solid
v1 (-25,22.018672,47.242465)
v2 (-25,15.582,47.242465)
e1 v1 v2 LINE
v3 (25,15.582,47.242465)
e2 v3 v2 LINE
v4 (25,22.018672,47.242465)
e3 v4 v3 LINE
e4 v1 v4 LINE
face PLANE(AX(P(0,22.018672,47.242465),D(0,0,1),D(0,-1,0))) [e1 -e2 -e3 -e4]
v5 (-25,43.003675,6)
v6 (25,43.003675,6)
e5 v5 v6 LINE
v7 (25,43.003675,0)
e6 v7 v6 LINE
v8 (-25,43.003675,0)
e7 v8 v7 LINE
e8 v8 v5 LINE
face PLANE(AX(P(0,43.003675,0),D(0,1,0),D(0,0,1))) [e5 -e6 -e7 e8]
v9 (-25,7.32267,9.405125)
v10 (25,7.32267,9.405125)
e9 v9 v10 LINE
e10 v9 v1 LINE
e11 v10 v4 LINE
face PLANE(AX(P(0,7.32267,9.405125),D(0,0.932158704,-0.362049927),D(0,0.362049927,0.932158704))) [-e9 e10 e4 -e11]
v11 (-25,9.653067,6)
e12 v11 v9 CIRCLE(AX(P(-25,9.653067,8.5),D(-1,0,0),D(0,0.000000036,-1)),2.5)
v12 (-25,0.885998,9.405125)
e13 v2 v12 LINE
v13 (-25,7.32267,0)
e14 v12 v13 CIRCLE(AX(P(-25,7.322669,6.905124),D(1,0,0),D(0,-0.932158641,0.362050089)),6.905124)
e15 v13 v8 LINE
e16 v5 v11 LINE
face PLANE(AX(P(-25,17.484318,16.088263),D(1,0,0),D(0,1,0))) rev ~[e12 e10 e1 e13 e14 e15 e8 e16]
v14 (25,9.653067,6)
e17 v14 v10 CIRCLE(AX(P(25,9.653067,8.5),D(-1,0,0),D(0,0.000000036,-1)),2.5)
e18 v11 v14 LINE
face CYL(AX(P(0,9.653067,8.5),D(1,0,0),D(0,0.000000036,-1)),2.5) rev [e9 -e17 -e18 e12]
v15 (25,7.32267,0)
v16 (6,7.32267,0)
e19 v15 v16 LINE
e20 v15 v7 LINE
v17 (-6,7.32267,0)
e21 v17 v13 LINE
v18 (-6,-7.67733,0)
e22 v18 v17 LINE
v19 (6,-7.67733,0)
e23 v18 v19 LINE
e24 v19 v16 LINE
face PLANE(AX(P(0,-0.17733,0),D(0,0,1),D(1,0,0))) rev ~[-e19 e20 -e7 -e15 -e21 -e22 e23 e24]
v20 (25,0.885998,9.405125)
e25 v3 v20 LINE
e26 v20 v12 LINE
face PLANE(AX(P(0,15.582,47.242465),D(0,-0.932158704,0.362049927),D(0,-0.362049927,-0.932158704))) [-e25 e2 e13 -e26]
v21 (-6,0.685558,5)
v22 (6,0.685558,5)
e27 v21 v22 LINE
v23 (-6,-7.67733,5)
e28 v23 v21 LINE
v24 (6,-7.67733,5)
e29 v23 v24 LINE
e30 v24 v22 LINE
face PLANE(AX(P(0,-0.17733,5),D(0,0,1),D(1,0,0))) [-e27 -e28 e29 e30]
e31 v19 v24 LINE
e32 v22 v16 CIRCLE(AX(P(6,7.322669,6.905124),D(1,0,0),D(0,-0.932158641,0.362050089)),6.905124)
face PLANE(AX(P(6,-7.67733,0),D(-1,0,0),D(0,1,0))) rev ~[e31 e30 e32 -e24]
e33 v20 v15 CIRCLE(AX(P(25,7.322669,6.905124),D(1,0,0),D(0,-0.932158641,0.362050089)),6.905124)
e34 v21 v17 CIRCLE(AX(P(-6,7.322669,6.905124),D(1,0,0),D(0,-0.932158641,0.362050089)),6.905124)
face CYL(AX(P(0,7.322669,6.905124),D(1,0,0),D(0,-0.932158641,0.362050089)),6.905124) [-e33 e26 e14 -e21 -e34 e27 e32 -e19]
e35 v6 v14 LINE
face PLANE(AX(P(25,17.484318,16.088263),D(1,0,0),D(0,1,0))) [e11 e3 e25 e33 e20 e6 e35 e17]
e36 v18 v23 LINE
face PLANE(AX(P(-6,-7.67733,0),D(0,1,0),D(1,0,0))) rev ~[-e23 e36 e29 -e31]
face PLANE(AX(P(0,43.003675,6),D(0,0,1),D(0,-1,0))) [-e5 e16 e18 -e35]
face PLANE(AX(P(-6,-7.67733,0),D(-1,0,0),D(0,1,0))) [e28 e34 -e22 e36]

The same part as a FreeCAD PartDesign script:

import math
import FreeCAD as App
import Part
import Sketcher

V = App.Vector


def add_polygon(sketch, points):
    """Adds a closed chain of lines whose ends are joined by coincident constraints."""
    first, n = sketch.GeometryCount, len(points)
    for a, b in zip(points, points[1:] + points[:1]):
        sketch.addGeometry(Part.LineSegment(App.Vector(*a, 0), App.Vector(*b, 0)), False)
    for i in range(n):
        sketch.addConstraint(Sketcher.Constraint("Coincident", first + i, 2, first + (i + 1) % n, 1))

doc = App.newDocument("Part")
body = doc.addObject("PartDesign::Body", "Body")

sketch1 = body.newObject("Sketcher::SketchObject", "Sketch")
sketch1.AttachmentSupport = (doc.getObject("YZ_Plane"), [""])
sketch1.MapMode = "FlatFace"
sketch1.addGeometry([
    Part.LineSegment(V(7.32267, 0, 0), V(43.003675, 0, 0)),
    Part.LineSegment(V(43.003675, 0, 0), V(43.003675, 6, 0)),
    Part.LineSegment(V(43.003675, 6, 0), V(9.653067, 6, 0)),
    Part.ArcOfCircle(Part.Circle(V(9.653067, 8.5, 0), V(0, 0, 1), 2.5), math.radians(158.773858), math.radians(270.000002)),
    Part.LineSegment(V(7.32267, 9.405125, 0), V(22.018672, 47.242465, 0)),
    Part.LineSegment(V(22.018672, 47.242465, 0), V(15.582, 47.242465, 0)),
    Part.LineSegment(V(15.582, 47.242465, 0), V(0.885998, 9.405125, 0)),
    Part.ArcOfCircle(Part.Circle(V(7.322669, 6.905124, 0), V(0, 0, 1), 6.905124), math.radians(158.773847), math.radians(270.000007)),
], False)
sketch1.addConstraint([
    Sketcher.Constraint("Coincident", 0, 2, 1, 1),
    Sketcher.Constraint("Coincident", 1, 2, 2, 1),
    Sketcher.Constraint("Coincident", 2, 2, 3, 2),
    Sketcher.Constraint("Coincident", 3, 1, 4, 1),
    Sketcher.Constraint("Coincident", 4, 2, 5, 1),
    Sketcher.Constraint("Coincident", 5, 2, 6, 1),
    Sketcher.Constraint("Coincident", 6, 2, 7, 1),
    Sketcher.Constraint("Coincident", 7, 2, 0, 1),
    Sketcher.Constraint("Horizontal", 0),
    Sketcher.Constraint("Vertical", 1),
    Sketcher.Constraint("Horizontal", 2),
    Sketcher.Constraint("Horizontal", 5),
    Sketcher.Constraint("PointOnObject", 0, 2, -1),
    Sketcher.Constraint("Radius", 3, 2.5),
    Sketcher.Constraint("DistanceY", 1, 1, 1, 2, 6.0),
    Sketcher.Constraint("DistanceY", 7, 3, 3, 1, 2.500001),
    Sketcher.Constraint("DistanceY", 7, 3, 6, 2, 2.500001),
    Sketcher.Constraint("DistanceX", -1, 1, 5, 2, 15.582),
    Sketcher.Constraint("Radius", 7, 6.905124),
    Sketcher.Constraint("DistanceX", 3, 1, 4, 2, 14.696002),
    Sketcher.Constraint("DistanceX", 5, 2, 5, 1, 6.436672),
    Sketcher.Constraint("DistanceX", 0, 1, 0, 2, 35.681005),
    Sketcher.Constraint("DistanceX", 2, 2, 2, 1, 33.350608),
    Sketcher.Constraint("DistanceX", -1, 1, 7, 3, 7.322669),
    Sketcher.Constraint("DistanceX", -1, 1, 7, 2, 7.32267),
    Sketcher.Constraint("DistanceY", 3, 1, 4, 2, 37.83734),
])
pad1 = body.newObject("PartDesign::Pad", "Pad")
pad1.Profile = sketch1
pad1.Length = 50
pad1.Midplane = True

sketch2 = body.newObject("Sketcher::SketchObject", "Sketch001")
sketch2.AttachmentSupport = (doc.getObject("XY_Plane"), [""])
sketch2.MapMode = "FlatFace"
add_polygon(sketch2, [(-6, 7), (-6, -8), (6, -8), (6, 7)])
sketch2.addConstraint([
    Sketcher.Constraint("Vertical", 0),
    Sketcher.Constraint("Horizontal", 1),
    Sketcher.Constraint("Vertical", 2),
    Sketcher.Constraint("Horizontal", 3),
    Sketcher.Constraint("DistanceX", 1, 1, 1, 2, 12.0),
    Sketcher.Constraint("DistanceY", 0, 2, 0, 1, 15.0),
    Sketcher.Constraint("DistanceX", 0, 2, -1, 1, 6.0),
    Sketcher.Constraint("DistanceY", 0, 2, -1, 1, 7.67733),
])
pad2 = body.newObject("PartDesign::Pad", "Pad001")
pad2.Profile = sketch2
pad2.Length = 5

doc.recompute()
